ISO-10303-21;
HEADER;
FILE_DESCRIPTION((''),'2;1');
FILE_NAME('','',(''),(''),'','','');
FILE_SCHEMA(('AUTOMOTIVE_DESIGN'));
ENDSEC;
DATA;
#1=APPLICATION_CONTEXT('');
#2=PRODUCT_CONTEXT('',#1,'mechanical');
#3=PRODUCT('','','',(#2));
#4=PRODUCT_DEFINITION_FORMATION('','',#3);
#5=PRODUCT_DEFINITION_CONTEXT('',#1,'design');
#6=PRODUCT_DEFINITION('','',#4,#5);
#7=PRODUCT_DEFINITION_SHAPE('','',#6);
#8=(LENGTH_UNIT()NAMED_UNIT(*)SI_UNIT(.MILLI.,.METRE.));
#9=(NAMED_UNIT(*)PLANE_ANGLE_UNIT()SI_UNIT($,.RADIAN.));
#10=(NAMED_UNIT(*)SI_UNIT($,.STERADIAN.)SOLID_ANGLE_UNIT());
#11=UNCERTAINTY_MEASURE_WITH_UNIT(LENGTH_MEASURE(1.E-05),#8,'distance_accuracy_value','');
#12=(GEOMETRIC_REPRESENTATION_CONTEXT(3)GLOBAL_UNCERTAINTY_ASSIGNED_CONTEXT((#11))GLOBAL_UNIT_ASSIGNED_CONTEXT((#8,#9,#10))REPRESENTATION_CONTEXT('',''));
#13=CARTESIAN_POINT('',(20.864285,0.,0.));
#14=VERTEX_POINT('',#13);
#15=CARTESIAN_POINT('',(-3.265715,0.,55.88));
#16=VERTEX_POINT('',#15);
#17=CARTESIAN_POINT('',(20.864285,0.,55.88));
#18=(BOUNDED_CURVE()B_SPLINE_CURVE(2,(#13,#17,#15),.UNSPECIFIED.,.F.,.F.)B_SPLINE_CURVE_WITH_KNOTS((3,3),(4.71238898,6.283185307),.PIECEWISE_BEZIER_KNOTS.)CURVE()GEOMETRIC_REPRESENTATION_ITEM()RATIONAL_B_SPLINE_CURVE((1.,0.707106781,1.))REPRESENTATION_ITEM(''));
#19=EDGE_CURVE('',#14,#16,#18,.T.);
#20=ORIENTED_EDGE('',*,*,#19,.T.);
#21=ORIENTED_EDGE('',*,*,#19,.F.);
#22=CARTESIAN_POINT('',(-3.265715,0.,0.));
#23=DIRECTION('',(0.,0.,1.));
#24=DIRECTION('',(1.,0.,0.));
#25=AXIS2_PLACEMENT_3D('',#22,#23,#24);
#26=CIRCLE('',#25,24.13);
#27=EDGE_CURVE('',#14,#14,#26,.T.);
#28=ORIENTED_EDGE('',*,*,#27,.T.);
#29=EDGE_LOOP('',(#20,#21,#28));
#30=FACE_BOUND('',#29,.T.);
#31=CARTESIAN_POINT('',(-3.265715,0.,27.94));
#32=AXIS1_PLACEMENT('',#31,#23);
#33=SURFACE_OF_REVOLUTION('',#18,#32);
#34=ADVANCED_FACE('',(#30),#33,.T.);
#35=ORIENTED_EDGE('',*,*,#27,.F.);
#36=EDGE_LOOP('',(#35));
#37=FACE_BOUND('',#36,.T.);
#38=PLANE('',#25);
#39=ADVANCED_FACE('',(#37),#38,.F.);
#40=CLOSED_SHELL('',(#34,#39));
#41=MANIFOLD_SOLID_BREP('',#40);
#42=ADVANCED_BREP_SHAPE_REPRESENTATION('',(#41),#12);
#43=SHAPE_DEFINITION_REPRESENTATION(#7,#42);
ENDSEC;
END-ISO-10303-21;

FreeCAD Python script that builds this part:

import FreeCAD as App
import Part
import Sketcher

V = App.Vector

doc = App.newDocument("Part")
body = doc.addObject("PartDesign::Body", "Body")

# Sketch on XZ plane
sketch1 = body.newObject("Sketcher::SketchObject", "Sketch")
sketch1.AttachmentSupport = (doc.getObject("XZ_Plane"), [""])
sketch1.MapMode = "FlatFace"
sketch1.addGeometry([
    Part.LineSegment(V(-3.265715, 55.88, 0), V(-3.265715, 0, 0)),
    Part.LineSegment(V(-3.265715, 0, 0), V(20.864285, 0, 0)),
    Part.BSplineCurve([V(20.864285, 0, 0), V(20.864285, 55.88, 0), V(-3.265715, 55.88, 0)], [3, 3], [4.71238898, 6.283185307], False, 2, [1, 0.707106781, 1], False),
], False)
sketch1.addGeometry(Part.LineSegment(V(-3.265715, 0, 0), V(-3.265715, 55.88, 0)), True)  # axis
sketch1.addConstraint([
    Sketcher.Constraint("Block", 2),
    Sketcher.Constraint("Coincident", 0, 2, 1, 1),
    Sketcher.Constraint("Coincident", 1, 2, 2, 1),
    Sketcher.Constraint("Coincident", 2, 2, 0, 1),
    Sketcher.Constraint("Vertical", 0),
    Sketcher.Constraint("Horizontal", 1),
    Sketcher.Constraint("Vertical", 3),
    Sketcher.Constraint("Coincident", 3, 1, 0, 2),
    Sketcher.Constraint("Equal", 0, 3),
])
revolution = body.newObject("PartDesign::Revolution", "Revolution")
revolution.Profile = sketch1
revolution.ReferenceAxis = (sketch1, ["Axis0"])
revolution.Angle = 360

doc.recompute()
